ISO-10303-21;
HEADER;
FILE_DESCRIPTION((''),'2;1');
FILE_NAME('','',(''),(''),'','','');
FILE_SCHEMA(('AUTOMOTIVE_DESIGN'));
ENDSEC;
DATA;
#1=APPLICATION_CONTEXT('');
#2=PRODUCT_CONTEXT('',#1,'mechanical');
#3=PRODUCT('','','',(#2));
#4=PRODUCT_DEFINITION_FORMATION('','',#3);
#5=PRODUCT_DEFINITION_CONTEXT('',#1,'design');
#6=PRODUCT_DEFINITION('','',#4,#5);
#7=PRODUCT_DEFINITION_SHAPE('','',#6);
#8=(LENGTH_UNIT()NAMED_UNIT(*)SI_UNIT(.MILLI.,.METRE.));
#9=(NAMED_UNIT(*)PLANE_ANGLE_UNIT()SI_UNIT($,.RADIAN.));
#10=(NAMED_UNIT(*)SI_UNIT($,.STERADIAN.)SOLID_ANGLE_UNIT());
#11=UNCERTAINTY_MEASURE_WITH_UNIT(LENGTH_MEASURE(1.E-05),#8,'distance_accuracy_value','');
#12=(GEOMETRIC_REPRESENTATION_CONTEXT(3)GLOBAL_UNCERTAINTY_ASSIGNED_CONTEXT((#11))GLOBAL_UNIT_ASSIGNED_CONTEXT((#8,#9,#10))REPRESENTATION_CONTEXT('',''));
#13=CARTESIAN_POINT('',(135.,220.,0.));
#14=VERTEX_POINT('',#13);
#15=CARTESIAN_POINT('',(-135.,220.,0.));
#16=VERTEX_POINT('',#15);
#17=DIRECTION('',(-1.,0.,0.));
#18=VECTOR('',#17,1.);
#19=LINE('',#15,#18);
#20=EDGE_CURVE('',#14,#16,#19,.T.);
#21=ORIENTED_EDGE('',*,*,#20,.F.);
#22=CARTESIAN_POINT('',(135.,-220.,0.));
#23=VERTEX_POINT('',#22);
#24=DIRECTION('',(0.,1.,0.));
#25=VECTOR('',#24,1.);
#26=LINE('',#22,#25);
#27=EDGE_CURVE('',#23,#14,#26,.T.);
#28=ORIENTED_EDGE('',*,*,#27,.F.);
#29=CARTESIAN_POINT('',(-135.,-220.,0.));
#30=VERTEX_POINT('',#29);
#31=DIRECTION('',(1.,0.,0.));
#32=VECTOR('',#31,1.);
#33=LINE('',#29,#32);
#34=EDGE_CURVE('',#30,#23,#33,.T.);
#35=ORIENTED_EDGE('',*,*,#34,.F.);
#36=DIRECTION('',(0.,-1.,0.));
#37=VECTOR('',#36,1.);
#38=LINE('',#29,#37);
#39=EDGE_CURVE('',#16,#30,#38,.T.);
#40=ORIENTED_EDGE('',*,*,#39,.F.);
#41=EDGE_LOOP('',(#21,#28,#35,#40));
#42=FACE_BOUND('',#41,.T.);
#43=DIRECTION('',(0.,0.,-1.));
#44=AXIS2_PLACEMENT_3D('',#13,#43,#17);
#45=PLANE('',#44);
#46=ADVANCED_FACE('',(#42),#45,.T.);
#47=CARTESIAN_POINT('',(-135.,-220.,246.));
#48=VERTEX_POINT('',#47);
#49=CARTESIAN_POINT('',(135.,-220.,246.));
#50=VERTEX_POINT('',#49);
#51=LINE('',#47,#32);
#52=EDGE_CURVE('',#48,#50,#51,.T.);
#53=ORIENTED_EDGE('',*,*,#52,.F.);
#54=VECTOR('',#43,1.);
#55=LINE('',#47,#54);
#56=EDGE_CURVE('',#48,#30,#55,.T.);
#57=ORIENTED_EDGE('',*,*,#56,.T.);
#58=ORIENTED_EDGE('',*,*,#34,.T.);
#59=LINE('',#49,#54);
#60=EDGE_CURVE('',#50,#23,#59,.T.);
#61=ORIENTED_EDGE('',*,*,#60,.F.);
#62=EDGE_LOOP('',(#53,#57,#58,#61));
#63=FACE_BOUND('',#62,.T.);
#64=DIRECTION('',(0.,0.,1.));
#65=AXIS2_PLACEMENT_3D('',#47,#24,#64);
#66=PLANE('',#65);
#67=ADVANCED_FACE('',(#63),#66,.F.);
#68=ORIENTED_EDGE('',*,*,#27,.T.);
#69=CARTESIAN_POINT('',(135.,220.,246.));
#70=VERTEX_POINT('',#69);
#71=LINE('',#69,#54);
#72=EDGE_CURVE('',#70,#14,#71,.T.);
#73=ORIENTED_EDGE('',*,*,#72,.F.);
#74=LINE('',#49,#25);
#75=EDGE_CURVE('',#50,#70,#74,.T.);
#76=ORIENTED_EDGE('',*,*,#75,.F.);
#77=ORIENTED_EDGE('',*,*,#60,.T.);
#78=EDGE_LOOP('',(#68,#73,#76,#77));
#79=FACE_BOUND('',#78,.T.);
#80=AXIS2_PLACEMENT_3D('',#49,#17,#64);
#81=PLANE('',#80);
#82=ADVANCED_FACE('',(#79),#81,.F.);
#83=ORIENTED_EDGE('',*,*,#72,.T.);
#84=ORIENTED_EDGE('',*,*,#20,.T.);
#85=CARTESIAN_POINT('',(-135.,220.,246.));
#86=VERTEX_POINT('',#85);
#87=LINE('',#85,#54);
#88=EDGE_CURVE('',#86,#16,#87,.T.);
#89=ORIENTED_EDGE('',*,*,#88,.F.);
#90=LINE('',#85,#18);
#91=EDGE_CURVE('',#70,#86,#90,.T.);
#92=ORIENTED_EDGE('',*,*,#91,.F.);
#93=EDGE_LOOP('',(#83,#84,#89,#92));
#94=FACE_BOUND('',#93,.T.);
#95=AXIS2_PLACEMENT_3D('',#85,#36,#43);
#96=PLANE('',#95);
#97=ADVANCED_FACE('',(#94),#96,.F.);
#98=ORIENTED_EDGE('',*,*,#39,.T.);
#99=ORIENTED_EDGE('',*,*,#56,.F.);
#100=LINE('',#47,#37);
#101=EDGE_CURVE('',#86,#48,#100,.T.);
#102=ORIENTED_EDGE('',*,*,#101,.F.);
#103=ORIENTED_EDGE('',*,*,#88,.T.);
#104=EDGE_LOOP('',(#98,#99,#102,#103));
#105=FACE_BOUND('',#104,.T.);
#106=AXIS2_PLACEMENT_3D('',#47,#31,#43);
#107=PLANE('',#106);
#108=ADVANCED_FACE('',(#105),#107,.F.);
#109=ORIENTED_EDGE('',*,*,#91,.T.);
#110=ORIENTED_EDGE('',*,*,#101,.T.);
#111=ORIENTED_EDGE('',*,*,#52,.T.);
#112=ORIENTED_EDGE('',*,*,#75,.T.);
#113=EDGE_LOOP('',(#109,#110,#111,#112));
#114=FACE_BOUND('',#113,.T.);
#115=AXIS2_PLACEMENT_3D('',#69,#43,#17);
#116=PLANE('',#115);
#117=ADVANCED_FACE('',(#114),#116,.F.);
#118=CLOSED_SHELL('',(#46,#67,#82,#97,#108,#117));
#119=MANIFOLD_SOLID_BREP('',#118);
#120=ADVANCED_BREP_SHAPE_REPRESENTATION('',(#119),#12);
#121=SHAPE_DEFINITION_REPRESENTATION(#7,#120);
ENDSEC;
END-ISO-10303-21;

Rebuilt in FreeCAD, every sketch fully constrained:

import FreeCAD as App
import Part
import Sketcher
from FreeCAD import Vector
Q = App.Units.Quantity

doc = App.newDocument("Part")
params = doc.addObject("Spreadsheet::Sheet", "Params")
for row, (alias, value) in enumerate([
    ("sketch1_width", "270 mm"),
    ("sketch1_height", "440 mm"),
    ("pad1_length", "246 mm"),
], start=1):
    params.set(f"A{row}", alias)
    params.set(f"B{row}", "=" + value)
    params.setAlias(f"B{row}", alias)

body = doc.addObject("PartDesign::Body", "Body")

# Sketch on XY plane
sketch1 = body.newObject("Sketcher::SketchObject", "Sketch")
sketch1.AttachmentSupport = (doc.getObject("XY_Plane"), [""])
sketch1.MapMode = "FlatFace"
sketch1.addGeometry([
    Part.LineSegment(Vector(-135, 220, 0), Vector(-135, -220, 0)),
    Part.LineSegment(Vector(-135, -220, 0), Vector(135, -220, 0)),
    Part.LineSegment(Vector(135, -220, 0), Vector(135, 220, 0)),
    Part.LineSegment(Vector(135, 220, 0), Vector(-135, 220, 0)),
], False)
sketch1.addConstraint([
    Sketcher.Constraint("Coincident", 0, 2, 1, 1),
    Sketcher.Constraint("Coincident", 1, 2, 2, 1),
    Sketcher.Constraint("Coincident", 2, 2, 3, 1),
    Sketcher.Constraint("Coincident", 3, 2, 0, 1),
    Sketcher.Constraint("Vertical", 0),
    Sketcher.Constraint("Horizontal", 1),
    Sketcher.Constraint("Vertical", 2),
    Sketcher.Constraint("Horizontal", 3),
    Sketcher.Constraint("Symmetric", 0, 2, 2, 2, -1, 1),
    Sketcher.Constraint("DistanceX", 1, 1, 1, 2, Q("270 mm")),
    Sketcher.Constraint("DistanceY", 0, 2, 0, 1, Q("440 mm")),
])
sketch1.setExpression("Constraints[9]", "Params.sketch1_width")
sketch1.setExpression("Constraints[10]", "Params.sketch1_height")
pad1 = body.newObject("PartDesign::Pad", "Pad")
pad1.Profile = sketch1
pad1.setExpression("Length", "Params.pad1_length")

doc.recompute()
